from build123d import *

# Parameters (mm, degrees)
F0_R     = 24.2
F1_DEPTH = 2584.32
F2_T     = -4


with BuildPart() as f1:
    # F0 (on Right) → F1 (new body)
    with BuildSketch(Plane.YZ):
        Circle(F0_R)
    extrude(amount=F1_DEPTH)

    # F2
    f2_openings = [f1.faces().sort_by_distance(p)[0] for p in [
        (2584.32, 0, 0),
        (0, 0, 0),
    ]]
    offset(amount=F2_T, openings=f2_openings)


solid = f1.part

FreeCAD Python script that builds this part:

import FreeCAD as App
import Part
import Sketcher

V = App.Vector
Q = App.Units.Quantity


def faces_at(feature, points):
    """Names of the faces that lie closest to the given points."""
    faces = feature.Shape.Faces
    near = lambda p: min(range(len(faces)), key=lambda i: faces[i].distToShape(Part.Vertex(*p))[0])
    return sorted({f"Face{near(p) + 1}" for p in points})

doc = App.newDocument("Part")
body = doc.addObject("PartDesign::Body", "Body")

# Sketch on YZ plane
sketch1 = body.newObject("Sketcher::SketchObject", "Sketch")
sketch1.AttachmentSupport = (doc.getObject("YZ_Plane"), [""])
sketch1.MapMode = "FlatFace"
sketch1.addGeometry(Part.Circle(V(0, 0, 0), V(0, 0, 1), 24), False)
sketch1.addConstraint(Sketcher.Constraint("Coincident", 0, 3, -1, 1))
sketch1.addConstraint(Sketcher.Constraint("Diameter", 0, Q("48.4 mm")))
pad1 = body.newObject("PartDesign::Pad", "Pad")
pad1.Profile = sketch1
pad1.Length = 2584.32
doc.recompute()

thickness = body.newObject("PartDesign::Thickness", "Thickness")
thickness.Base = (pad1, faces_at(pad1, [(2584.32, 0, 0), (0, 0, 0)]))
thickness.Value = 4
thickness.Reversed = True
thickness.Join = "Arc"

doc.recompute()
